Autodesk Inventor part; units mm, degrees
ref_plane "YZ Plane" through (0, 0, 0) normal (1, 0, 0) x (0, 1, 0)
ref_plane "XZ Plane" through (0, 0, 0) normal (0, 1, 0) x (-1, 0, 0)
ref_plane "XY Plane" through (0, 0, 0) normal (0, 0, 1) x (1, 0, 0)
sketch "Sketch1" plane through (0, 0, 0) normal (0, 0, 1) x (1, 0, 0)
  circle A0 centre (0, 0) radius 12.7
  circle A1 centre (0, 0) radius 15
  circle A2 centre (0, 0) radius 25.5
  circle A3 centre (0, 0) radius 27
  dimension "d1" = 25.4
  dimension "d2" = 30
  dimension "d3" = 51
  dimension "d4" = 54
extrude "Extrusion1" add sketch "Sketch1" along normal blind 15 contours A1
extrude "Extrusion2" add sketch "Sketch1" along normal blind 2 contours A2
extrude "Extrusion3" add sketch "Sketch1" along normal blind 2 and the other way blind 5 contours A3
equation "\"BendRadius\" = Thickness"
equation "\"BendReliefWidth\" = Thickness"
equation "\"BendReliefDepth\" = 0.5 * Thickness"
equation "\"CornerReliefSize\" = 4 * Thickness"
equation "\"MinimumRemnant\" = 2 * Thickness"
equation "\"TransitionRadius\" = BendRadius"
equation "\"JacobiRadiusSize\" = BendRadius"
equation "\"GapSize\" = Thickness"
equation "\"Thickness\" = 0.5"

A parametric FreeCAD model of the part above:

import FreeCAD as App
import Part
import Sketcher

V = App.Vector
Q = App.Units.Quantity

doc = App.newDocument("Part")
body = doc.addObject("PartDesign::Body", "Body")

# Sketch on XY plane
sketch1 = body.newObject("Sketcher::SketchObject", "Sketch")
sketch1.AttachmentSupport = (doc.getObject("XY_Plane"), [""])
sketch1.MapMode = "FlatFace"
sketch1.addGeometry([
    Part.Circle(V(0, 0, 0), V(0, 0, 1), 15),
    Part.Circle(V(0, 0, 0), V(0, 0, 1), 13),
], False)
sketch1.addConstraint([
    Sketcher.Constraint("Coincident", 0, 3, -1, 1),
    Sketcher.Constraint("Coincident", 1, 3, -1, 1),
    Sketcher.Constraint("Diameter", 0, Q("30 mm")),
    Sketcher.Constraint("Diameter", 1, Q("25.4 mm")),
])
pad1 = body.newObject("PartDesign::Pad", "Pad")
pad1.Profile = sketch1
pad1.Length = 15

# Sketch on XY plane
sketch2 = body.newObject("Sketcher::SketchObject", "Sketch001")
sketch2.AttachmentSupport = (doc.getObject("XY_Plane"), [""])
sketch2.MapMode = "FlatFace"
sketch2.addGeometry([
    Part.Circle(V(0, 0, 0), V(0, 0, 1), 26),
    Part.Circle(V(0, 0, 0), V(0, 0, 1), 15),
], False)
sketch2.addConstraint([
    Sketcher.Constraint("Coincident", 0, 3, -1, 1),
    Sketcher.Constraint("Coincident", 1, 3, -1, 1),
    Sketcher.Constraint("Diameter", 0, Q("51 mm")),
    Sketcher.Constraint("Diameter", 1, Q("30 mm")),
])
pad2 = body.newObject("PartDesign::Pad", "Pad001")
pad2.Profile = sketch2
pad2.Length = 2

# Sketch on XY plane
sketch3 = body.newObject("Sketcher::SketchObject", "Sketch002")
sketch3.AttachmentSupport = (doc.getObject("XY_Plane"), [""])
sketch3.MapMode = "FlatFace"
sketch3.addGeometry([
    Part.Circle(V(0, 0, 0), V(0, 0, 1), 27),
    Part.Circle(V(0, 0, 0), V(0, 0, 1), 26),
], False)
sketch3.addConstraint([
    Sketcher.Constraint("Coincident", 0, 3, -1, 1),
    Sketcher.Constraint("Coincident", 1, 3, -1, 1),
    Sketcher.Constraint("Diameter", 0, Q("54 mm")),
    Sketcher.Constraint("Diameter", 1, Q("51 mm")),
])
pad3 = body.newObject("PartDesign::Pad", "Pad002")
pad3.Profile = sketch3
pad3.Type = "TwoLengths"
pad3.Length = 2
pad3.Length2 = 5

doc.recompute()
